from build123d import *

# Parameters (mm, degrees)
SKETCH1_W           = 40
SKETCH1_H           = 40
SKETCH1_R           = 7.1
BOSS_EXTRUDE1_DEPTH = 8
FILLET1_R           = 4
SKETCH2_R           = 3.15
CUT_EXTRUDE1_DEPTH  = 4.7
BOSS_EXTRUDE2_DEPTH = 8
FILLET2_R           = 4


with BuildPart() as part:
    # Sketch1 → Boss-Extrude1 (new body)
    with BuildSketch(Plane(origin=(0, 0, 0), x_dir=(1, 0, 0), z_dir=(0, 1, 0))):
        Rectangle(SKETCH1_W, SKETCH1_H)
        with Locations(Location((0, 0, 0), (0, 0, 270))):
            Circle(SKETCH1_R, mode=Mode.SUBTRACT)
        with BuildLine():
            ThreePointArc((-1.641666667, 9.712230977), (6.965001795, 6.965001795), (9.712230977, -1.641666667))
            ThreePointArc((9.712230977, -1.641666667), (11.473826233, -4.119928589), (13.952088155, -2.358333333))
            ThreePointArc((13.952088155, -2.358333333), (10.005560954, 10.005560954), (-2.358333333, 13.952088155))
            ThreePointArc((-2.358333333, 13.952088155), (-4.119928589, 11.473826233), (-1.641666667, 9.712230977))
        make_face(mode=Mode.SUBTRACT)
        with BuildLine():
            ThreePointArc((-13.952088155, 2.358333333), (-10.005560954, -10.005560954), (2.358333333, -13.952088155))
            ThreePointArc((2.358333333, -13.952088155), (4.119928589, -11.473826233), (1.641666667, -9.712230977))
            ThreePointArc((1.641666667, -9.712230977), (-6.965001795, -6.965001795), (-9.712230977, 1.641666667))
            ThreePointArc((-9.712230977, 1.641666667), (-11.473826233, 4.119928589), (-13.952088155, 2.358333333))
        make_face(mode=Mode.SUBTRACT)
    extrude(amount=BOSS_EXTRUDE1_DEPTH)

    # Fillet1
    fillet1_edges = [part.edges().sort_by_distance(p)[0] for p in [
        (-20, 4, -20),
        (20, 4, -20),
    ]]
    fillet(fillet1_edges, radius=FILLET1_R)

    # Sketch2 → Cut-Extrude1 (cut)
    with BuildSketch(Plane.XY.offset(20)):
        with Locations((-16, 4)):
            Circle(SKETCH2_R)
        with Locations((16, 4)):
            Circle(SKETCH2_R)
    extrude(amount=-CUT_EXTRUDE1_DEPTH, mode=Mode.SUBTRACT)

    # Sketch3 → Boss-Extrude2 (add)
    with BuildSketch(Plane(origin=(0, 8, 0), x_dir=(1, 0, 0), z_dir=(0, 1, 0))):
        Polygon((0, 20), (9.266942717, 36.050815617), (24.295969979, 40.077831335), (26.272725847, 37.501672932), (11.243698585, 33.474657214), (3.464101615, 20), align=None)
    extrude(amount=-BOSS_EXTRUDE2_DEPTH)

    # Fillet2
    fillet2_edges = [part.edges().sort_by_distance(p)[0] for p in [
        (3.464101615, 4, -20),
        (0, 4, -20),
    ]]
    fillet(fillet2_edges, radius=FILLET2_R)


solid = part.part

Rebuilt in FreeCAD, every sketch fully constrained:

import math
import FreeCAD as App
import Part
import Sketcher
Q = App.Units.Quantity


def edges_at(feature, points):
    """Names of the edges that pass closest to the given points."""
    edges = feature.Shape.Edges
    near = lambda p: min(range(len(edges)), key=lambda i: edges[i].distToShape(Part.Vertex(*p))[0])
    return sorted({f"Edge{near(p) + 1}" for p in points})


def add_polygon(sketch, points):
    """Adds a closed chain of lines whose ends are joined by coincident constraints."""
    first, n = sketch.GeometryCount, len(points)
    for a, b in zip(points, points[1:] + points[:1]):
        sketch.addGeometry(Part.LineSegment(App.Vector(*a, 0), App.Vector(*b, 0)), False)
    for i in range(n):
        sketch.addConstraint(Sketcher.Constraint("Coincident", first + i, 2, first + (i + 1) % n, 1))

doc = App.newDocument("Part")
body = doc.addObject("PartDesign::Body", "Body")

# Sketch on XZ plane
sketch1 = body.newObject("Sketcher::SketchObject", "Sketch")
sketch1.AttachmentSupport = (doc.getObject("XZ_Plane"), [""])
sketch1.MapMode = "FlatFace"
add_polygon(sketch1, [(-20, -20), (-20, 20), (20, 20), (20, -20)])  # lines 0-3
sketch1.addGeometry(Part.ArcOfCircle(Part.Circle(App.Vector(0, 0, 0), App.Vector(0, 0, 1), 14.1), math.radians(80), math.radians(190)), False)  # 4
sketch1.addGeometry(Part.ArcOfCircle(Part.Circle(App.Vector(-11.8, -2, 0), App.Vector(0, 0, 1), 2.1), math.radians(-170), math.radians(10)), False)  # 5
sketch1.addGeometry(Part.ArcOfCircle(Part.Circle(App.Vector(0, 0, 0), App.Vector(0, 0, 1), 9.8), math.radians(80), math.radians(190)), False)  # 6
sketch1.addGeometry(Part.ArcOfCircle(Part.Circle(App.Vector(2, 11.8, 0), App.Vector(0, 0, 1), 2.1), math.radians(-100), math.radians(80)), False)  # 7
sketch1.addGeometry(Part.Circle(App.Vector(0, 0, 0), App.Vector(0, 0, 1), 7.1), False)  # 8
sketch1.addGeometry(Part.ArcOfCircle(Part.Circle(App.Vector(0, 0, 0), App.Vector(0, 0, 1), 9.8), math.radians(-100), math.radians(10)), False)  # 9
sketch1.addGeometry(Part.ArcOfCircle(Part.Circle(App.Vector(-2, -11.8, 0), App.Vector(0, 0, 1), 2.1), math.radians(80), math.radians(260)), False)  # 10
sketch1.addGeometry(Part.ArcOfCircle(Part.Circle(App.Vector(0, 0, 0), App.Vector(0, 0, 1), 14.1), math.radians(-100), math.radians(10)), False)  # 11
sketch1.addGeometry(Part.ArcOfCircle(Part.Circle(App.Vector(11.8, 2, 0), App.Vector(0, 0, 1), 2.1), math.radians(10), math.radians(190)), False)  # 12
sketch1.addConstraint([
    Sketcher.Constraint("Tangent", 4, 2, 5, 1),
    Sketcher.Constraint("Tangent", 5, 2, 6, 2),
    Sketcher.Constraint("Tangent", 6, 1, 7, 1),
    Sketcher.Constraint("Tangent", 7, 2, 4, 1),
    Sketcher.Constraint("Tangent", 9, 1, 10, 1),
    Sketcher.Constraint("Tangent", 10, 2, 11, 1),
    Sketcher.Constraint("Tangent", 11, 2, 12, 1),
    Sketcher.Constraint("Tangent", 12, 2, 9, 2),
    Sketcher.Constraint("Vertical", 0),
    Sketcher.Constraint("Horizontal", 1),
    Sketcher.Constraint("Vertical", 2),
    Sketcher.Constraint("Horizontal", 3),
    Sketcher.Constraint("Coincident", 4, 3, -1, 1),
    Sketcher.Constraint("Coincident", 6, 3, -1, 1),
    Sketcher.Constraint("Coincident", 8, 3, -1, 1),
    Sketcher.Constraint("Coincident", 9, 3, -1, 1),
    Sketcher.Constraint("Coincident", 11, 3, -1, 1),
    Sketcher.Constraint("Equal", 6, 9),
    Sketcher.Constraint("Equal", 7, 10),
    Sketcher.Constraint("Symmetric", 0, 2, 2, 2, -1, 1),
    Sketcher.Constraint("Equal", 3, 0),
    Sketcher.Constraint("Diameter", 8, Q("14.2 mm")),
    Sketcher.Constraint("DistanceX", 1, 1, 1, 2, Q("40 mm")),
    Sketcher.Constraint("Radius", 4, Q("14.15 mm")),
    Sketcher.Constraint("Radius", 5, Q("2.15 mm")),
    Sketcher.Constraint("DistanceY", 5, 3, -1, 1, Q("2 mm")),
    Sketcher.Constraint("DistanceX", -1, 1, 7, 3, Q("2 mm")),
    Sketcher.Constraint("DistanceX", 10, 3, -1, 1, Q("2 mm")),
    Sketcher.Constraint("DistanceY", -1, 1, 12, 3, Q("2 mm")),
])
pad1 = body.newObject("PartDesign::Pad", "Pad")
pad1.Profile = sketch1
pad1.Length = 8
pad1.Reversed = True
doc.recompute()

fillet = body.newObject("PartDesign::Fillet", "Fillet")
fillet.Base = (pad1, edges_at(pad1, [(-20, 4, -20), (20, 4, -20)]))
fillet.Radius = 4

# Sketch on XY plane
sketch2 = body.newObject("Sketcher::SketchObject", "Sketch001")
sketch2.AttachmentSupport = (doc.getObject("XY_Plane"), [""])
sketch2.MapMode = "FlatFace"
sketch2.AttachmentOffset = App.Placement(App.Vector(0, 0, 20), App.Rotation())
sketch2.addGeometry([
    Part.Circle(App.Vector(-16, 4, 0), App.Vector(0, 0, 1), 3.1),
    Part.Circle(App.Vector(16, 4, 0), App.Vector(0, 0, 1), 3.1),
], False)
sketch2.addConstraint([
    Sketcher.Constraint("Equal", 0, 1),
    Sketcher.Constraint("Symmetric", 0, 3, 1, 3, -2),
    Sketcher.Constraint("Diameter", 0, Q("6.3 mm")),
    Sketcher.Constraint("DistanceX", 0, 3, -1, 1, Q("16 mm")),
    Sketcher.Constraint("DistanceY", -1, 1, 0, 3, Q("4 mm")),
])
pocket1 = body.newObject("PartDesign::Pocket", "Pocket")
pocket1.Profile = sketch2
pocket1.Length = 4.7

# Sketch on XZ plane
sketch3 = body.newObject("Sketcher::SketchObject", "Sketch002")
sketch3.AttachmentSupport = (doc.getObject("XZ_Plane"), [""])
sketch3.MapMode = "FlatFace"
sketch3.AttachmentOffset = App.Placement(App.Vector(0, 0, -8), App.Rotation())
add_polygon(sketch3, [(9.3, -36.1), (0, -20), (3.5, -20), (11.2, -33.5), (26.3, -37.5), (24.3, -40.1)])  # lines 0-5
sketch3.addConstraint([
    Sketcher.Constraint("Horizontal", 1),
    Sketcher.Constraint("PointOnObject", 0, 2, -2),
    Sketcher.Constraint("Parallel", 0, 2),
    Sketcher.Constraint("Parallel", 3, 5),
    Sketcher.Constraint("Equal", 2, 3),
    Sketcher.Constraint("Equal", 3, 5),
    Sketcher.Constraint("Angle", 0, Q("120 deg")),
    Sketcher.Constraint("Angle", 3, Q("-15 deg")),
    Sketcher.Constraint("DistanceY", 0, 2, -1, 1, Q("20 mm")),
    Sketcher.Constraint("Angle", 4, Q("-127.5 deg")),
    Sketcher.Constraint("DistanceX", 1, 1, 1, 2, Q("3.464102 mm")),
    Sketcher.Constraint("DistanceX", -1, 1, 2, 2, Q("11.243699 mm")),
])
pad2 = body.newObject("PartDesign::Pad", "Pad001")
pad2.Profile = sketch3
pad2.Length = 8
doc.recompute()

fillet2 = body.newObject("PartDesign::Fillet", "Fillet001")
fillet2.Base = (pad2, edges_at(pad2, [(3.464, 4, -20), (0, 4, -20)]))
fillet2.Radius = 4

doc.recompute()
